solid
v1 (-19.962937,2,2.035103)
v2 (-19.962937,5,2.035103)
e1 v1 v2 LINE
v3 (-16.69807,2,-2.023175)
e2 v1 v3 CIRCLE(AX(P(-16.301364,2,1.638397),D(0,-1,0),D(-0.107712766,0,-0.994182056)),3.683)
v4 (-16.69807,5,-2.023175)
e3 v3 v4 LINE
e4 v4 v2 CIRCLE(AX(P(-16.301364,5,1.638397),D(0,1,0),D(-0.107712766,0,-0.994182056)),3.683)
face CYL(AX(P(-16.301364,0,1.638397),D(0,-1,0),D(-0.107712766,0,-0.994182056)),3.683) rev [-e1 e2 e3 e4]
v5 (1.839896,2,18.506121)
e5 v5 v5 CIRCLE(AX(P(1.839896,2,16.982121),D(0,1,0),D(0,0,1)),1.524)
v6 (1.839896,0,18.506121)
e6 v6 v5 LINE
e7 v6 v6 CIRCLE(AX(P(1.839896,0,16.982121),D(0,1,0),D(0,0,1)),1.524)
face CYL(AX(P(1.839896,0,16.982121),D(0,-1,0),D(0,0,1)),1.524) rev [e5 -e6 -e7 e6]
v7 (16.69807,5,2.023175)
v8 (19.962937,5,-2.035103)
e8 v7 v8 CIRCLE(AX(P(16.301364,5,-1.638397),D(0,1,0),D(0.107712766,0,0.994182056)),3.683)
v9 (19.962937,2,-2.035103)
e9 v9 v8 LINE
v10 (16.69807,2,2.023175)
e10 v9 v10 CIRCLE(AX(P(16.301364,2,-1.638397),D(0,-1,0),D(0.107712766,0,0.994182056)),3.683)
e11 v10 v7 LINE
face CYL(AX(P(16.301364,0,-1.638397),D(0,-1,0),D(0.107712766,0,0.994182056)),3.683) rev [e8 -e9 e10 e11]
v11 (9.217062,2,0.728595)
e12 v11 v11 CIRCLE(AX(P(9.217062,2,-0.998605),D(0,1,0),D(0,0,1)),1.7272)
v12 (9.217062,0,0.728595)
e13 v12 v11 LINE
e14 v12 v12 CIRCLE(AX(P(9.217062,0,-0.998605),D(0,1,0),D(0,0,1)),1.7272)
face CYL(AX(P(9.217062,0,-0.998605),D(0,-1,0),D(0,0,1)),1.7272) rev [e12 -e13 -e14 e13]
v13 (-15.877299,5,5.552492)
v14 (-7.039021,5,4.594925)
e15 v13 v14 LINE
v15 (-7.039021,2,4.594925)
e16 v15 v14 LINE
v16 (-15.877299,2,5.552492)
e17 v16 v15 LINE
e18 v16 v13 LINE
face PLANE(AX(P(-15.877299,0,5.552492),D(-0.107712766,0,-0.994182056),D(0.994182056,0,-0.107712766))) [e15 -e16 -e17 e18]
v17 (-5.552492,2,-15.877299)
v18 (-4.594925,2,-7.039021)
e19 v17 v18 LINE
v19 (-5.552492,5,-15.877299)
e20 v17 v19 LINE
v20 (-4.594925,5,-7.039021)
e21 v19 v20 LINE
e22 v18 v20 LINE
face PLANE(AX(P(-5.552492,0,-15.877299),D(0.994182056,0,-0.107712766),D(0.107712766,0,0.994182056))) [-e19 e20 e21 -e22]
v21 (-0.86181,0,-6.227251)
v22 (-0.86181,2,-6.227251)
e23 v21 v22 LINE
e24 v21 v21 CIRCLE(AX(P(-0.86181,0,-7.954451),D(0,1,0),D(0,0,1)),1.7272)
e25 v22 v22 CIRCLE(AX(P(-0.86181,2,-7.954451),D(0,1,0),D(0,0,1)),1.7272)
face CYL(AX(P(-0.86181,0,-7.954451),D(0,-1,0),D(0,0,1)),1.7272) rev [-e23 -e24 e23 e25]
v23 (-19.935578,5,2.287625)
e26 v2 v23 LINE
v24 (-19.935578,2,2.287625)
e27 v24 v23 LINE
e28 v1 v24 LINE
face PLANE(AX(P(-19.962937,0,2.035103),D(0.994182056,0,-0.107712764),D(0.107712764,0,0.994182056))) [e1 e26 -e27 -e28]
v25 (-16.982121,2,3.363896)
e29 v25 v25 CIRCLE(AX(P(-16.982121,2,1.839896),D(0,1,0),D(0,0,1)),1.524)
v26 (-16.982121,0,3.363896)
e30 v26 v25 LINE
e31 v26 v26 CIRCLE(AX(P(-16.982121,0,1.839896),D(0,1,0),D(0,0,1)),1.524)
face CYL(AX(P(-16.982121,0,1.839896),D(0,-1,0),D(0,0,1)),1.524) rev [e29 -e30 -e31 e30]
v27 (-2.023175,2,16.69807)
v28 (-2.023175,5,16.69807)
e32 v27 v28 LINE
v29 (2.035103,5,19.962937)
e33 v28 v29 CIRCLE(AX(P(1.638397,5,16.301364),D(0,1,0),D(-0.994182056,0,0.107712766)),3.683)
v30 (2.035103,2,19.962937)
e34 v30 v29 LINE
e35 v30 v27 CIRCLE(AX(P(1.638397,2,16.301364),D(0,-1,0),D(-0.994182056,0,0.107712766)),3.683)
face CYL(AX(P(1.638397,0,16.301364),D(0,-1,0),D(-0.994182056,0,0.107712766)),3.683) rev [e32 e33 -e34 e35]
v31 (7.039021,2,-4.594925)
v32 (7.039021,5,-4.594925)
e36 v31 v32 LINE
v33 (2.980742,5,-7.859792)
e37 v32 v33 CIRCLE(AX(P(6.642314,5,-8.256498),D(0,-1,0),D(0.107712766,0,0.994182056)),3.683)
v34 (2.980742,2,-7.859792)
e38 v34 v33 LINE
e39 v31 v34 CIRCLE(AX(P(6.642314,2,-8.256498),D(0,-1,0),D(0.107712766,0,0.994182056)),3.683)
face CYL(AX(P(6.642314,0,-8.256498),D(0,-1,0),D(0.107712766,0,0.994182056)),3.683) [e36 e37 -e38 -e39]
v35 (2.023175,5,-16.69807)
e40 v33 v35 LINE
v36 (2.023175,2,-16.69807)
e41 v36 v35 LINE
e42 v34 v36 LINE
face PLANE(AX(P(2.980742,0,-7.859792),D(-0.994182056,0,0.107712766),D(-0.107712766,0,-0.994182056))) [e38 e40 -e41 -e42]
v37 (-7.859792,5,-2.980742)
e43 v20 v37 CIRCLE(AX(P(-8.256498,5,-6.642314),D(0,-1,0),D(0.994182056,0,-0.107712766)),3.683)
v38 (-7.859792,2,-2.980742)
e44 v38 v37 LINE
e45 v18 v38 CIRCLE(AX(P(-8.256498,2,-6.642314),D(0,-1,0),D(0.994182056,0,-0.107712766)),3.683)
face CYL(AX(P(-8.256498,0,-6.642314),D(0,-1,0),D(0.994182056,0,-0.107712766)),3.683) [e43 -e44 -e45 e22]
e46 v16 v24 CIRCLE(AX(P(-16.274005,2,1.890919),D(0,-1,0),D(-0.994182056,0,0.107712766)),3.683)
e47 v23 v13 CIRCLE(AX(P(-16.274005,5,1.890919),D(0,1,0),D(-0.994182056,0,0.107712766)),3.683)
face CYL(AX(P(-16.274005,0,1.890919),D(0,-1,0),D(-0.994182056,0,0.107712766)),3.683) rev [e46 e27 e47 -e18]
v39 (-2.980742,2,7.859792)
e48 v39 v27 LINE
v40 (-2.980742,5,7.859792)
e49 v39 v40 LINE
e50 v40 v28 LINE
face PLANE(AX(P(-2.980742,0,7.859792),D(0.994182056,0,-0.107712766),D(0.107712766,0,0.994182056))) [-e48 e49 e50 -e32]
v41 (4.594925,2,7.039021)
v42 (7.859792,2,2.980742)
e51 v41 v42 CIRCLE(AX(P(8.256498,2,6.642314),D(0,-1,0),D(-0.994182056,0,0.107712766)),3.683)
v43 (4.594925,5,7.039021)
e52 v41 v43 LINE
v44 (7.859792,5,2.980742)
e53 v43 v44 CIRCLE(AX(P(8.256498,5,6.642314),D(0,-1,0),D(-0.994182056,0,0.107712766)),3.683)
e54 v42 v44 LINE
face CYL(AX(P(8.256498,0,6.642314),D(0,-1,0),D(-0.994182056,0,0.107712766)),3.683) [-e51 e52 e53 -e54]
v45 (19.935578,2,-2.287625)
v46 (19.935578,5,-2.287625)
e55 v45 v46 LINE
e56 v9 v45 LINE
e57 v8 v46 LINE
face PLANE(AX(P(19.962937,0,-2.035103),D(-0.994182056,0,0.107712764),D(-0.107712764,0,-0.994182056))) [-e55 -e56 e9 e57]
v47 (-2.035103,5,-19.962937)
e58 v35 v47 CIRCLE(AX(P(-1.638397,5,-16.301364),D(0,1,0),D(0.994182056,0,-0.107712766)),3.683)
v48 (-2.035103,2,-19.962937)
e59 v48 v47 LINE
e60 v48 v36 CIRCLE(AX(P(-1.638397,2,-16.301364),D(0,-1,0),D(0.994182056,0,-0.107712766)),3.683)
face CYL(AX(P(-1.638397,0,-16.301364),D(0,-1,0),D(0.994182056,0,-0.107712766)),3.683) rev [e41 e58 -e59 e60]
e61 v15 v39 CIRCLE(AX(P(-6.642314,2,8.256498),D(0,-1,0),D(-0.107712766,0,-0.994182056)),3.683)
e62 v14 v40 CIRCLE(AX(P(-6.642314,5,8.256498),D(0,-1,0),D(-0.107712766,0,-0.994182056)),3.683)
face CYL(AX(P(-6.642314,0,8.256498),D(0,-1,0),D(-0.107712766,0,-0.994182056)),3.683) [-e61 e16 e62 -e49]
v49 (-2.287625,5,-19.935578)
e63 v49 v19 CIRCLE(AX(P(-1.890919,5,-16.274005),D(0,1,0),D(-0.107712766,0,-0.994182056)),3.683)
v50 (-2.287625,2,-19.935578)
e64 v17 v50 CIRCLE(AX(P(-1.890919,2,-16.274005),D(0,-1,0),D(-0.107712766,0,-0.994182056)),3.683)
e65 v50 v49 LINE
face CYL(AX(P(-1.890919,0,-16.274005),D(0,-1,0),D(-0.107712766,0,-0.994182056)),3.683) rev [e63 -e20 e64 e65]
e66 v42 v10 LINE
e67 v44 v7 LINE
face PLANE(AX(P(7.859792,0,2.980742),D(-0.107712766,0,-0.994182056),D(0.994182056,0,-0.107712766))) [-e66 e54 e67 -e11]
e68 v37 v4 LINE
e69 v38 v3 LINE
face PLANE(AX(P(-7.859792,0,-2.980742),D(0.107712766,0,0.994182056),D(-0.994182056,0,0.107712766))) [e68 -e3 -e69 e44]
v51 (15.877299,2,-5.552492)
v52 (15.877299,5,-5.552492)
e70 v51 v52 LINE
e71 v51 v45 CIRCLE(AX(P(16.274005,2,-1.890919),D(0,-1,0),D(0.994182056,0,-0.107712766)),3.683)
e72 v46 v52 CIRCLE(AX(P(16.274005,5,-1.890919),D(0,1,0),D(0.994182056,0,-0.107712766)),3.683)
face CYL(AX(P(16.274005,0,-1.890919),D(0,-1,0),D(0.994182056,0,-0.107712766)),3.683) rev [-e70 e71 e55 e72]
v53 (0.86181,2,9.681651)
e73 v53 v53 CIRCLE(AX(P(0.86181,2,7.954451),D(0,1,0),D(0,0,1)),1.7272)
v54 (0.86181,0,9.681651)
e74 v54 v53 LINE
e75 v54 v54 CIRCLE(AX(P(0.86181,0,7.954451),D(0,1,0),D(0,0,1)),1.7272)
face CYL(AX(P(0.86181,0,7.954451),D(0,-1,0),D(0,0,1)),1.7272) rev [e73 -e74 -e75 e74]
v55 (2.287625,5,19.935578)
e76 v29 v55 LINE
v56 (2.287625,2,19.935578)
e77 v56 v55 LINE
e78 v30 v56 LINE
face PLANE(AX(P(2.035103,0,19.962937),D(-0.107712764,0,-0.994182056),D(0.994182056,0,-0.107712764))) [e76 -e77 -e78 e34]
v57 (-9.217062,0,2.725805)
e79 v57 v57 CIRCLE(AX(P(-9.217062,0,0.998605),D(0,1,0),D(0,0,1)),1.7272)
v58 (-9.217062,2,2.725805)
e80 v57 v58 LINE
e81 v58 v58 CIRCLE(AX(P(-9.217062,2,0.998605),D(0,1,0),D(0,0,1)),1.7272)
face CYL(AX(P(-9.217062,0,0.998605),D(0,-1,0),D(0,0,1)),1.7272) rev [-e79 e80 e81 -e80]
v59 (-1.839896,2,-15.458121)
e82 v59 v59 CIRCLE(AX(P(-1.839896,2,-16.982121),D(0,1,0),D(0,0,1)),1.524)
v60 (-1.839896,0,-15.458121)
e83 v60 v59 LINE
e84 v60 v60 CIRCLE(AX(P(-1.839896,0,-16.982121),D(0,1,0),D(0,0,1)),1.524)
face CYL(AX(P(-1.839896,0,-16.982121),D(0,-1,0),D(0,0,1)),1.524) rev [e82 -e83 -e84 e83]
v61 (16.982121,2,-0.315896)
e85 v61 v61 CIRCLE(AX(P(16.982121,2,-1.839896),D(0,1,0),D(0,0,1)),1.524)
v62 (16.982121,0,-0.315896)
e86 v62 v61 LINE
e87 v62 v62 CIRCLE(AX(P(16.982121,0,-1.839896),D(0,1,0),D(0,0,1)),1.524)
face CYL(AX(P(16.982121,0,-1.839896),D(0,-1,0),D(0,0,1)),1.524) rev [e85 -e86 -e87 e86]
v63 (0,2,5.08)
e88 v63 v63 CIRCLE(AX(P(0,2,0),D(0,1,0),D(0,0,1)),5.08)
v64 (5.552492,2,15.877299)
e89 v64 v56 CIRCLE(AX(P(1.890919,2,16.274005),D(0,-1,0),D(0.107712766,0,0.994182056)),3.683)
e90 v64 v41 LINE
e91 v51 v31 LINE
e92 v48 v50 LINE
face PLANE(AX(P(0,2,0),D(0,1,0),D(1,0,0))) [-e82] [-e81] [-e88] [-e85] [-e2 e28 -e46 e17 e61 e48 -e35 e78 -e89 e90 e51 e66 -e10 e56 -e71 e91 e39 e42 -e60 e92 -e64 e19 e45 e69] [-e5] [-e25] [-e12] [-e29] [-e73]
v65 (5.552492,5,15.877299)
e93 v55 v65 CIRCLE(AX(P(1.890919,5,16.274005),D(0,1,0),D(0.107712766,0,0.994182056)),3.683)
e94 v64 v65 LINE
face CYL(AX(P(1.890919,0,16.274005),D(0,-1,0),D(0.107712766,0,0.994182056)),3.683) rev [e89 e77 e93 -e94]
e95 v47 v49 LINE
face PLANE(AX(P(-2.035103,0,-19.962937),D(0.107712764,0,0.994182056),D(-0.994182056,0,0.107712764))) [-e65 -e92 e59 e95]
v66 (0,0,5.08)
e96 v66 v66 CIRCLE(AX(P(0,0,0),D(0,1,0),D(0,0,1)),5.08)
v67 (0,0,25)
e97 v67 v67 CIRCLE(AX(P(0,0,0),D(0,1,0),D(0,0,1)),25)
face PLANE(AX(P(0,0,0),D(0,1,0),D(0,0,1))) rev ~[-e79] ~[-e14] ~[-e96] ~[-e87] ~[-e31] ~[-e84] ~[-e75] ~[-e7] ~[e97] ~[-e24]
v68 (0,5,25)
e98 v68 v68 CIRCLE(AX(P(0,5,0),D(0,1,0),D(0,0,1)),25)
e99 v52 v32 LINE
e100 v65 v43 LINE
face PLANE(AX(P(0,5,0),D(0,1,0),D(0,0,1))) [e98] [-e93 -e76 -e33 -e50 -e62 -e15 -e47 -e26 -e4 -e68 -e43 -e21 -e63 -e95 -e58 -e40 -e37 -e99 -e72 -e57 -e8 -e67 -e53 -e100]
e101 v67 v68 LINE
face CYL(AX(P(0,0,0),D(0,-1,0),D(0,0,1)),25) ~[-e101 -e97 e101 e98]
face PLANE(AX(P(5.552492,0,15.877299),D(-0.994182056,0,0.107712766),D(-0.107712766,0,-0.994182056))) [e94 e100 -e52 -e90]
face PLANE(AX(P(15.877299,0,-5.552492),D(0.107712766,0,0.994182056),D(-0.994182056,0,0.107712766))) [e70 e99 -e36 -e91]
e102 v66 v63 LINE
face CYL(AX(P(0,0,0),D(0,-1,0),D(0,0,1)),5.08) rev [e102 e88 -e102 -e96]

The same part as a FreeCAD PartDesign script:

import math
import FreeCAD as App
import Part
import Sketcher
from FreeCAD import Vector
Q = App.Units.Quantity

doc = App.newDocument("Part")
body = doc.addObject("PartDesign::Body", "Body")

# Sketch on XZ plane
sketch1 = body.newObject("Sketcher::SketchObject", "Sketch")
sketch1.AttachmentSupport = (doc.getObject("XZ_Plane"), [""])
sketch1.MapMode = "FlatFace"
sketch1.addGeometry(Part.Circle(Vector(0, 0, 0), Vector(0, 0, 1), 25), False)
sketch1.addGeometry(Part.LineSegment(Vector(-19.94, 2.29, 0), Vector(-19.96, 2.04, 0)), False)
sketch1.addGeometry(Part.ArcOfCircle(Part.Circle(Vector(-16.3, 1.64, 0), Vector(0, 0, 1), 3.68), math.radians(174), math.radians(264)), False)
sketch1.addGeometry(Part.LineSegment(Vector(-16.7, -2.02, 0), Vector(-7.86, -2.98, 0)), False)
sketch1.addGeometry(Part.ArcOfCircle(Part.Circle(Vector(-8.26, -6.64, 0), Vector(0, 0, 1), 3.68), math.radians(-6), math.radians(84)), False)
sketch1.addGeometry(Part.LineSegment(Vector(-4.59, -7.04, 0), Vector(-5.55, -15.88, 0)), False)
sketch1.addGeometry(Part.ArcOfCircle(Part.Circle(Vector(-1.89, -16.27, 0), Vector(0, 0, 1), 3.68), math.radians(174), math.radians(264)), False)
sketch1.addGeometry(Part.LineSegment(Vector(-2.29, -19.94, 0), Vector(-2.04, -19.96, 0)), False)
sketch1.addGeometry(Part.ArcOfCircle(Part.Circle(Vector(-1.64, -16.3, 0), Vector(0, 0, 1), 3.68), math.radians(-96), math.radians(-6)), False)
sketch1.addGeometry(Part.LineSegment(Vector(2.02, -16.7, 0), Vector(2.98, -7.86, 0)), False)
sketch1.addGeometry(Part.ArcOfCircle(Part.Circle(Vector(6.64, -8.26, 0), Vector(0, 0, 1), 3.68), math.radians(84), math.radians(174)), False)
sketch1.addGeometry(Part.LineSegment(Vector(7.04, -4.59, 0), Vector(15.88, -5.55, 0)), False)
sketch1.addGeometry(Part.ArcOfCircle(Part.Circle(Vector(16.27, -1.89, 0), Vector(0, 0, 1), 3.68), math.radians(-96), math.radians(-6)), False)
sketch1.addGeometry(Part.LineSegment(Vector(19.94, -2.29, 0), Vector(19.96, -2.04, 0)), False)
sketch1.addGeometry(Part.ArcOfCircle(Part.Circle(Vector(16.3, -1.64, 0), Vector(0, 0, 1), 3.68), math.radians(-6), math.radians(84)), False)
sketch1.addGeometry(Part.LineSegment(Vector(16.7, 2.02, 0), Vector(7.86, 2.98, 0)), False)
sketch1.addGeometry(Part.ArcOfCircle(Part.Circle(Vector(8.26, 6.64, 0), Vector(0, 0, 1), 3.68), math.radians(174), math.radians(264)), False)
sketch1.addGeometry(Part.LineSegment(Vector(4.59, 7.04, 0), Vector(5.55, 15.88, 0)), False)
sketch1.addGeometry(Part.ArcOfCircle(Part.Circle(Vector(1.89, 16.27, 0), Vector(0, 0, 1), 3.68), math.radians(-6), math.radians(84)), False)
sketch1.addGeometry(Part.LineSegment(Vector(2.29, 19.94, 0), Vector(2.04, 19.96, 0)), False)
sketch1.addGeometry(Part.ArcOfCircle(Part.Circle(Vector(1.64, 16.3, 0), Vector(0, 0, 1), 3.68), math.radians(84), math.radians(174)), False)
sketch1.addGeometry(Part.LineSegment(Vector(-2.02, 16.7, 0), Vector(-2.98, 7.86, 0)), False)
sketch1.addGeometry(Part.ArcOfCircle(Part.Circle(Vector(-6.64, 8.26, 0), Vector(0, 0, 1), 3.68), math.radians(-96), math.radians(-6)), False)
sketch1.addGeometry(Part.LineSegment(Vector(-7.04, 4.59, 0), Vector(-15.88, 5.55, 0)), False)
sketch1.addGeometry(Part.ArcOfCircle(Part.Circle(Vector(-16.27, 1.89, 0), Vector(0, 0, 1), 3.68), math.radians(84), math.radians(174)), False)
sketch1.addConstraint(Sketcher.Constraint("Tangent", 1, 2, 2, 1))
sketch1.addConstraint(Sketcher.Constraint("Tangent", 2, 2, 3, 1))
sketch1.addConstraint(Sketcher.Constraint("Tangent", 3, 2, 4, 2))
sketch1.addConstraint(Sketcher.Constraint("Tangent", 4, 1, 5, 1))
sketch1.addConstraint(Sketcher.Constraint("Tangent", 5, 2, 6, 1))
sketch1.addConstraint(Sketcher.Constraint("Tangent", 6, 2, 7, 1))
sketch1.addConstraint(Sketcher.Constraint("Tangent", 7, 2, 8, 1))
sketch1.addConstraint(Sketcher.Constraint("Tangent", 8, 2, 9, 1))
sketch1.addConstraint(Sketcher.Constraint("Tangent", 9, 2, 10, 2))
sketch1.addConstraint(Sketcher.Constraint("Tangent", 10, 1, 11, 1))
sketch1.addConstraint(Sketcher.Constraint("Tangent", 11, 2, 12, 1))
sketch1.addConstraint(Sketcher.Constraint("Tangent", 12, 2, 13, 1))
sketch1.addConstraint(Sketcher.Constraint("Tangent", 13, 2, 14, 1))
sketch1.addConstraint(Sketcher.Constraint("Tangent", 14, 2, 15, 1))
sketch1.addConstraint(Sketcher.Constraint("Tangent", 15, 2, 16, 2))
sketch1.addConstraint(Sketcher.Constraint("Tangent", 16, 1, 17, 1))
sketch1.addConstraint(Sketcher.Constraint("Tangent", 17, 2, 18, 1))
sketch1.addConstraint(Sketcher.Constraint("Tangent", 18, 2, 19, 1))
sketch1.addConstraint(Sketcher.Constraint("Tangent", 19, 2, 20, 1))
sketch1.addConstraint(Sketcher.Constraint("Tangent", 20, 2, 21, 1))
sketch1.addConstraint(Sketcher.Constraint("Tangent", 21, 2, 22, 2))
sketch1.addConstraint(Sketcher.Constraint("Tangent", 22, 1, 23, 1))
sketch1.addConstraint(Sketcher.Constraint("Tangent", 23, 2, 24, 1))
sketch1.addConstraint(Sketcher.Constraint("Tangent", 24, 2, 1, 1))
sketch1.addConstraint(Sketcher.Constraint("Coincident", 0, 3, -1, 1))
sketch1.addConstraint(Sketcher.Constraint("Equal", 2, 4))
sketch1.addConstraint(Sketcher.Constraint("Equal", 4, 6))
sketch1.addConstraint(Sketcher.Constraint("Equal", 6, 8))
sketch1.addConstraint(Sketcher.Constraint("Equal", 8, 10))
sketch1.addConstraint(Sketcher.Constraint("Equal", 10, 12))
sketch1.addConstraint(Sketcher.Constraint("Equal", 12, 14))
sketch1.addConstraint(Sketcher.Constraint("Equal", 14, 16))
sketch1.addConstraint(Sketcher.Constraint("Equal", 16, 18))
sketch1.addConstraint(Sketcher.Constraint("Equal", 18, 20))
sketch1.addConstraint(Sketcher.Constraint("Equal", 20, 22))
sketch1.addConstraint(Sketcher.Constraint("Equal", 22, 24))
sketch1.addConstraint(Sketcher.Constraint("Symmetric", 2, 3, 14, 3, -1, 1))
sketch1.addConstraint(Sketcher.Constraint("Symmetric", 4, 3, 16, 3, -1, 1))
sketch1.addConstraint(Sketcher.Constraint("Symmetric", 6, 3, 18, 3, -1, 1))
sketch1.addConstraint(Sketcher.Constraint("Symmetric", 8, 3, 20, 3, -1, 1))
sketch1.addConstraint(Sketcher.Constraint("Symmetric", 10, 3, 22, 3, -1, 1))
sketch1.addConstraint(Sketcher.Constraint("Symmetric", 12, 3, 24, 3, -1, 1))
sketch1.addConstraint(Sketcher.Constraint("Perpendicular", 1, 3))
sketch1.addConstraint(Sketcher.Constraint("Perpendicular", 3, 5))
sketch1.addConstraint(Sketcher.Constraint("Perpendicular", 5, 7))
sketch1.addConstraint(Sketcher.Constraint("Perpendicular", 7, 9))
sketch1.addConstraint(Sketcher.Constraint("Perpendicular", 9, 11))
sketch1.addConstraint(Sketcher.Constraint("Equal", 3, 5))
sketch1.addConstraint(Sketcher.Constraint("Equal", 1, 7))
sketch1.addConstraint(Sketcher.Constraint("Equal", 5, 9))
sketch1.addConstraint(Sketcher.Constraint("Equal", 9, 11))
sketch1.addConstraint(Sketcher.Constraint("Radius", 2, Q("0.145 in")))
sketch1.addConstraint(Sketcher.Constraint("Distance", 1, Q("0.01 in")))
sketch1.addConstraint(Sketcher.Constraint("Distance", 3, Q("0.35 in")))
sketch1.addConstraint(Sketcher.Constraint("Diameter", 0, Q("50 mm")))
sketch1.addConstraint(Sketcher.Constraint("DistanceY", 5, 2, -1, 1, Q("15.877299 mm")))
pad1 = body.newObject("PartDesign::Pad", "Pad")
pad1.Profile = sketch1
pad1.Length = 5
pad1.Reversed = True

# Sketch on XZ plane
sketch2 = body.newObject("Sketcher::SketchObject", "Sketch001")
sketch2.AttachmentSupport = (doc.getObject("XZ_Plane"), [""])
sketch2.MapMode = "FlatFace"
sketch2.addGeometry(Part.Circle(Vector(0, 0, 0), Vector(0, 0, 1), 22.5), False)
sketch2.addGeometry(Part.Circle(Vector(-17, 1.8, 0), Vector(0, 0, 1), 1.5), False)
sketch2.addGeometry(Part.Circle(Vector(-9.2, 1, 0), Vector(0, 0, 1), 1.7), False)
sketch2.addGeometry(Part.Circle(Vector(1.8, 17, 0), Vector(0, 0, 1), 1.5), False)
sketch2.addGeometry(Part.Circle(Vector(0.9, 8, 0), Vector(0, 0, 1), 1.7), False)
sketch2.addGeometry(Part.Circle(Vector(-0.9, -8, 0), Vector(0, 0, 1), 1.7), False)
sketch2.addGeometry(Part.Circle(Vector(-1.8, -17, 0), Vector(0, 0, 1), 1.5), False)
sketch2.addGeometry(Part.Circle(Vector(0, 0, 0), Vector(0, 0, 1), 5.1), False)
sketch2.addGeometry(Part.Circle(Vector(9.2, -1, 0), Vector(0, 0, 1), 1.7), False)
sketch2.addGeometry(Part.Circle(Vector(17, -1.8, 0), Vector(0, 0, 1), 1.5), False)
sketch2.addConstraint(Sketcher.Constraint("Coincident", 0, 3, -1, 1))
sketch2.addConstraint(Sketcher.Constraint("Coincident", 7, 3, -1, 1))
sketch2.addConstraint(Sketcher.Constraint("Equal", 1, 3))
sketch2.addConstraint(Sketcher.Constraint("Equal", 2, 4))
sketch2.addConstraint(Sketcher.Constraint("Equal", 4, 5))
sketch2.addConstraint(Sketcher.Constraint("Equal", 3, 6))
sketch2.addConstraint(Sketcher.Constraint("Equal", 5, 8))
sketch2.addConstraint(Sketcher.Constraint("Equal", 6, 9))
sketch2.addConstraint(Sketcher.Constraint("Symmetric", 4, 3, 5, 3, -1, 1))
sketch2.addConstraint(Sketcher.Constraint("Symmetric", 3, 3, 6, 3, -1, 1))
sketch2.addConstraint(Sketcher.Constraint("Symmetric", 2, 3, 8, 3, -1, 1))
sketch2.addConstraint(Sketcher.Constraint("Symmetric", 1, 3, 9, 3, -1, 1))
sketch2.addConstraint(Sketcher.Constraint("Diameter", 7, Q("0.4 in")))
sketch2.addConstraint(Sketcher.Constraint("Diameter", 1, Q("0.12 in")))
sketch2.addConstraint(Sketcher.Constraint("Diameter", 2, Q("0.136 in")))
sketch2.addConstraint(Sketcher.Constraint("Diameter", 0, Q("45 mm")))
sketch2.addConstraint(Sketcher.Constraint("DistanceY", 5, 3, 4, 3, Q("15.908901 mm")))
sketch2.addConstraint(Sketcher.Constraint("DistanceX", 1, 3, -1, 1, Q("16.982121 mm")))
sketch2.addConstraint(Sketcher.Constraint("DistanceX", 2, 3, -1, 1, Q("9.217062 mm")))
sketch2.addConstraint(Sketcher.Constraint("DistanceY", -1, 1, 3, 3, Q("16.982121 mm")))
sketch2.addConstraint(Sketcher.Constraint("DistanceX", -1, 1, 4, 3, Q("0.86181 mm")))
sketch2.addConstraint(Sketcher.Constraint("DistanceY", 2, 3, 1, 3, Q("0.841291 mm")))
sketch2.addConstraint(Sketcher.Constraint("DistanceY", 8, 3, 2, 3, Q("1.99721 mm")))
sketch2.addConstraint(Sketcher.Constraint("DistanceX", -1, 1, 3, 3, Q("1.839896 mm")))
pad2 = body.newObject("PartDesign::Pad", "Pad001")
pad2.Profile = sketch2
pad2.Length = 2
pad2.Reversed = True

doc.recompute()
